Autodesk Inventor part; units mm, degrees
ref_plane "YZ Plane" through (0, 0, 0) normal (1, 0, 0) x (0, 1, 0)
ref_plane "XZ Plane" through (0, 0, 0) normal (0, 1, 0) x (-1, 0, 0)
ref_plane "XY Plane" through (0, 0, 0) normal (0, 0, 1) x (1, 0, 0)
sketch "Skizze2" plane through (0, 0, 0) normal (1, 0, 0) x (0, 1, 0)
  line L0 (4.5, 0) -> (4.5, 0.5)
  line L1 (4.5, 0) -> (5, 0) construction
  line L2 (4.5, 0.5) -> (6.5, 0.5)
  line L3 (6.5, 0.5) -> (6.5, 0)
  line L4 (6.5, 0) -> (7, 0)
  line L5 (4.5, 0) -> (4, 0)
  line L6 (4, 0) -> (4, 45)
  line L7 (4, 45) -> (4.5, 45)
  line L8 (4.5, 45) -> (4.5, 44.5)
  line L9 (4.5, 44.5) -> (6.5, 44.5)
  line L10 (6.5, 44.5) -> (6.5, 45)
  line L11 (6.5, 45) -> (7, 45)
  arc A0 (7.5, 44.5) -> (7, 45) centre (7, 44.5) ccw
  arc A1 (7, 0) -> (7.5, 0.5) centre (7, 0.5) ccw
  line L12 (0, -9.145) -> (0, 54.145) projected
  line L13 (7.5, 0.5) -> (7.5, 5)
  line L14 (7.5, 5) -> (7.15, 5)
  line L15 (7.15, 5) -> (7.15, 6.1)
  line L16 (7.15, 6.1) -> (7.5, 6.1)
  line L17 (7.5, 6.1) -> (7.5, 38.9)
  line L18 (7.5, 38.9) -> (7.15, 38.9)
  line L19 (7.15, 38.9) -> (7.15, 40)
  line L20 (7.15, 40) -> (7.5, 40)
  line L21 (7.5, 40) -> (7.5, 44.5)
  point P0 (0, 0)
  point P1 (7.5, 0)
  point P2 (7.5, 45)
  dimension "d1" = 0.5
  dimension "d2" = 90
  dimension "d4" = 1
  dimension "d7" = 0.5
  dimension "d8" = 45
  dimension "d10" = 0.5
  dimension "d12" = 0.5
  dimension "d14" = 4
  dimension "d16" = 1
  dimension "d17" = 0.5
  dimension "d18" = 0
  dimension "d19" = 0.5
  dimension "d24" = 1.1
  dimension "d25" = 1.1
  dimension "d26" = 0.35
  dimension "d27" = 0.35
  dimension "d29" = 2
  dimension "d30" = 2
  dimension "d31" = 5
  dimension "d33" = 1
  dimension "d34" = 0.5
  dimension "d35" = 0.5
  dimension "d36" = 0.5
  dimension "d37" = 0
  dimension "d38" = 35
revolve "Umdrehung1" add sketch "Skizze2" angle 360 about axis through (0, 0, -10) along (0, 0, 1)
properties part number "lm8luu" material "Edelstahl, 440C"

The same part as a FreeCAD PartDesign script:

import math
import FreeCAD as App
import Part
import Sketcher

V = App.Vector
Q = App.Units.Quantity

doc = App.newDocument("Part")
body = doc.addObject("PartDesign::Body", "Body")

sketch1 = body.newObject("Sketcher::SketchObject", "Sketch")
sketch1.AttachmentSupport = (doc.getObject("YZ_Plane"), [""])
sketch1.MapMode = "FlatFace"
sketch1.addGeometry([
    Part.LineSegment(V(4, 0, 0), V(4.5, 0, 0)),
    Part.LineSegment(V(4.5, 0, 0), V(4.5, 0.5, 0)),
    Part.LineSegment(V(4.5, 0.5, 0), V(6.5, 0.5, 0)),
    Part.LineSegment(V(6.5, 0.5, 0), V(6.5, 0, 0)),
    Part.LineSegment(V(6.5, 0, 0), V(7, 0, 0)),
    Part.ArcOfCircle(Part.Circle(V(7, 0.5, 0), V(0, 0, 1), 0.5), math.radians(-90), math.radians(0)),
    Part.LineSegment(V(7.5, 0.5, 0), V(7.5, 5, 0)),
    Part.LineSegment(V(7.5, 5, 0), V(7.15, 5, 0)),
    Part.LineSegment(V(7.15, 5, 0), V(7.15, 6.1, 0)),
    Part.LineSegment(V(7.15, 6.1, 0), V(7.5, 6.1, 0)),
    Part.LineSegment(V(7.5, 6.1, 0), V(7.5, 38.9, 0)),
    Part.LineSegment(V(7.5, 38.9, 0), V(7.15, 38.9, 0)),
    Part.LineSegment(V(7.15, 38.9, 0), V(7.15, 40, 0)),
    Part.LineSegment(V(7.15, 40, 0), V(7.5, 40, 0)),
    Part.LineSegment(V(7.5, 40, 0), V(7.5, 44.5, 0)),
    Part.ArcOfCircle(Part.Circle(V(7, 44.5, 0), V(0, 0, 1), 0.5), math.radians(0), math.radians(90)),
    Part.LineSegment(V(7, 45, 0), V(6.5, 45, 0)),
    Part.LineSegment(V(6.5, 45, 0), V(6.5, 44.5, 0)),
    Part.LineSegment(V(6.5, 44.5, 0), V(4.5, 44.5, 0)),
    Part.LineSegment(V(4.5, 44.5, 0), V(4.5, 45, 0)),
    Part.LineSegment(V(4.5, 45, 0), V(4, 45, 0)),
    Part.LineSegment(V(4, 45, 0), V(4, 0, 0)),
], False)
sketch1.addConstraint([
    Sketcher.Constraint("Coincident", 0, 2, 1, 1),
    Sketcher.Constraint("Coincident", 1, 2, 2, 1),
    Sketcher.Constraint("Coincident", 2, 2, 3, 1),
    Sketcher.Constraint("Coincident", 3, 2, 4, 1),
    Sketcher.Constraint("Tangent", 4, 2, 5, 1),
    Sketcher.Constraint("Tangent", 5, 2, 6, 1),
    Sketcher.Constraint("Coincident", 6, 2, 7, 1),
    Sketcher.Constraint("Coincident", 7, 2, 8, 1),
    Sketcher.Constraint("Coincident", 8, 2, 9, 1),
    Sketcher.Constraint("Coincident", 9, 2, 10, 1),
    Sketcher.Constraint("Coincident", 10, 2, 11, 1),
    Sketcher.Constraint("Coincident", 11, 2, 12, 1),
    Sketcher.Constraint("Coincident", 12, 2, 13, 1),
    Sketcher.Constraint("Coincident", 13, 2, 14, 1),
    Sketcher.Constraint("Tangent", 14, 2, 15, 1),
    Sketcher.Constraint("Tangent", 15, 2, 16, 1),
    Sketcher.Constraint("Coincident", 16, 2, 17, 1),
    Sketcher.Constraint("Coincident", 17, 2, 18, 1),
    Sketcher.Constraint("Coincident", 18, 2, 19, 1),
    Sketcher.Constraint("Coincident", 19, 2, 20, 1),
    Sketcher.Constraint("Coincident", 20, 2, 21, 1),
    Sketcher.Constraint("Coincident", 21, 2, 0, 1),
    Sketcher.Constraint("Horizontal", 0),
    Sketcher.Constraint("Vertical", 1),
    Sketcher.Constraint("Horizontal", 2),
    Sketcher.Constraint("Vertical", 3),
    Sketcher.Constraint("Horizontal", 4),
    Sketcher.Constraint("Vertical", 6),
    Sketcher.Constraint("Horizontal", 7),
    Sketcher.Constraint("Vertical", 8),
    Sketcher.Constraint("Horizontal", 9),
    Sketcher.Constraint("Vertical", 10),
    Sketcher.Constraint("Horizontal", 11),
    Sketcher.Constraint("Vertical", 12),
    Sketcher.Constraint("Horizontal", 13),
    Sketcher.Constraint("Vertical", 14),
    Sketcher.Constraint("Horizontal", 16),
    Sketcher.Constraint("Vertical", 17),
    Sketcher.Constraint("Horizontal", 18),
    Sketcher.Constraint("Vertical", 19),
    Sketcher.Constraint("Horizontal", 20),
    Sketcher.Constraint("Vertical", 21),
    Sketcher.Constraint("Equal", 5, 15),
    Sketcher.Constraint("PointOnObject", 0, 2, -1),
    Sketcher.Constraint("PointOnObject", 3, 2, -1),
    Sketcher.Constraint("Horizontal", 5, 3, 1, 2),
    Sketcher.Constraint("Horizontal", 14, 2, 17, 2),
    Sketcher.Constraint("Horizontal", 16, 2, 19, 2),
    Sketcher.Constraint("Vertical", 5, 3, 15, 3),
    Sketcher.Constraint("Vertical", 6, 2, 9, 2),
    Sketcher.Constraint("Vertical", 8, 2, 11, 2),
    Sketcher.Constraint("Vertical", 3, 2, 16, 2),
    Sketcher.Constraint("Vertical", 1, 2, 18, 2),
    Sketcher.Constraint("Equal", 0, 4),
    Sketcher.Constraint("Equal", 20, 1),
    Sketcher.Constraint("Equal", 8, 12),
    Sketcher.Constraint("Equal", 6, 14),
    Sketcher.Constraint("Radius", 5, Q("0.5 mm")),
    Sketcher.Constraint("DistanceX", 2, 1, 2, 2, Q("2 mm")),
    Sketcher.Constraint("DistanceY", 21, 2, 21, 1, Q("45 mm")),
    Sketcher.Constraint("DistanceY", 8, 1, 8, 2, Q("1.1 mm")),
    Sketcher.Constraint("DistanceY", -1, 1, 6, 2, Q("5 mm")),
    Sketcher.Constraint("DistanceX", -1, 1, 20, 2, Q("4 mm")),
    Sketcher.Constraint("DistanceX", 7, 2, 7, 1, Q("0.35 mm")),
])
revolution = body.newObject("PartDesign::Revolution", "Revolution")
revolution.Profile = sketch1
revolution.ReferenceAxis = (sketch1, ["V_Axis"])
revolution.Angle = 360

doc.recompute()
